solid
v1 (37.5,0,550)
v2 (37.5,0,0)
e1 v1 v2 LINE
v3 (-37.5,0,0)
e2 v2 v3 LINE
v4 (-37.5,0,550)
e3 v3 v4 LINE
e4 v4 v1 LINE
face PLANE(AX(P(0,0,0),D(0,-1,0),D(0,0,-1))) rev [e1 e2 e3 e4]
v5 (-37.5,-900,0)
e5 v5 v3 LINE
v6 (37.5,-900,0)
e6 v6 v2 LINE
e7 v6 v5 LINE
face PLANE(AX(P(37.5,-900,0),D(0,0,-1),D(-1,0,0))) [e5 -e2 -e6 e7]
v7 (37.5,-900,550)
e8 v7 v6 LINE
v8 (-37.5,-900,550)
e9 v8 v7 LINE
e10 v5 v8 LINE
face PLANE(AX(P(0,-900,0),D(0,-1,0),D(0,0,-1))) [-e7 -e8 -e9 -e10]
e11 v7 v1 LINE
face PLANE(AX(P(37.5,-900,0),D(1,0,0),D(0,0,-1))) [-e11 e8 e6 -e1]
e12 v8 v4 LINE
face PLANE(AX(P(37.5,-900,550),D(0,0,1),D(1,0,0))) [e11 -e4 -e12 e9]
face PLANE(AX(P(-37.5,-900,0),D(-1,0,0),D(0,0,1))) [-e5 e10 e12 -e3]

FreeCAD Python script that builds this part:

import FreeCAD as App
import Part
import Sketcher
from FreeCAD import Vector
Q = App.Units.Quantity

doc = App.newDocument("Part")
body = doc.addObject("PartDesign::Body", "Body")

sketch1 = body.newObject("Sketcher::SketchObject", "Sketch")
sketch1.AttachmentSupport = (doc.getObject("XZ_Plane"), [""])
sketch1.MapMode = "FlatFace"
sketch1.addGeometry([
    Part.LineSegment(Vector(-38, 0, 0), Vector(-38, 550, 0)),
    Part.LineSegment(Vector(-38, 550, 0), Vector(38, 550, 0)),
    Part.LineSegment(Vector(38, 550, 0), Vector(38, 0, 0)),
    Part.LineSegment(Vector(38, 0, 0), Vector(-38, 0, 0)),
], False)
sketch1.addConstraint([
    Sketcher.Constraint("Coincident", 0, 2, 1, 1),
    Sketcher.Constraint("Coincident", 1, 2, 2, 1),
    Sketcher.Constraint("Coincident", 2, 2, 3, 1),
    Sketcher.Constraint("Coincident", 3, 2, 0, 1),
    Sketcher.Constraint("Vertical", 0),
    Sketcher.Constraint("Horizontal", 1),
    Sketcher.Constraint("Vertical", 2),
    Sketcher.Constraint("Horizontal", 3),
    Sketcher.Constraint("Symmetric", 2, 2, 3, 2, -1, 1),
    Sketcher.Constraint("DistanceX", 1, 1, 1, 2, Q("75 mm")),
    Sketcher.Constraint("DistanceY", 0, 1, 0, 2, Q("550 mm")),
])
pad1 = body.newObject("PartDesign::Pad", "Pad")
pad1.Profile = sketch1
pad1.Length = 900

doc.recompute()
